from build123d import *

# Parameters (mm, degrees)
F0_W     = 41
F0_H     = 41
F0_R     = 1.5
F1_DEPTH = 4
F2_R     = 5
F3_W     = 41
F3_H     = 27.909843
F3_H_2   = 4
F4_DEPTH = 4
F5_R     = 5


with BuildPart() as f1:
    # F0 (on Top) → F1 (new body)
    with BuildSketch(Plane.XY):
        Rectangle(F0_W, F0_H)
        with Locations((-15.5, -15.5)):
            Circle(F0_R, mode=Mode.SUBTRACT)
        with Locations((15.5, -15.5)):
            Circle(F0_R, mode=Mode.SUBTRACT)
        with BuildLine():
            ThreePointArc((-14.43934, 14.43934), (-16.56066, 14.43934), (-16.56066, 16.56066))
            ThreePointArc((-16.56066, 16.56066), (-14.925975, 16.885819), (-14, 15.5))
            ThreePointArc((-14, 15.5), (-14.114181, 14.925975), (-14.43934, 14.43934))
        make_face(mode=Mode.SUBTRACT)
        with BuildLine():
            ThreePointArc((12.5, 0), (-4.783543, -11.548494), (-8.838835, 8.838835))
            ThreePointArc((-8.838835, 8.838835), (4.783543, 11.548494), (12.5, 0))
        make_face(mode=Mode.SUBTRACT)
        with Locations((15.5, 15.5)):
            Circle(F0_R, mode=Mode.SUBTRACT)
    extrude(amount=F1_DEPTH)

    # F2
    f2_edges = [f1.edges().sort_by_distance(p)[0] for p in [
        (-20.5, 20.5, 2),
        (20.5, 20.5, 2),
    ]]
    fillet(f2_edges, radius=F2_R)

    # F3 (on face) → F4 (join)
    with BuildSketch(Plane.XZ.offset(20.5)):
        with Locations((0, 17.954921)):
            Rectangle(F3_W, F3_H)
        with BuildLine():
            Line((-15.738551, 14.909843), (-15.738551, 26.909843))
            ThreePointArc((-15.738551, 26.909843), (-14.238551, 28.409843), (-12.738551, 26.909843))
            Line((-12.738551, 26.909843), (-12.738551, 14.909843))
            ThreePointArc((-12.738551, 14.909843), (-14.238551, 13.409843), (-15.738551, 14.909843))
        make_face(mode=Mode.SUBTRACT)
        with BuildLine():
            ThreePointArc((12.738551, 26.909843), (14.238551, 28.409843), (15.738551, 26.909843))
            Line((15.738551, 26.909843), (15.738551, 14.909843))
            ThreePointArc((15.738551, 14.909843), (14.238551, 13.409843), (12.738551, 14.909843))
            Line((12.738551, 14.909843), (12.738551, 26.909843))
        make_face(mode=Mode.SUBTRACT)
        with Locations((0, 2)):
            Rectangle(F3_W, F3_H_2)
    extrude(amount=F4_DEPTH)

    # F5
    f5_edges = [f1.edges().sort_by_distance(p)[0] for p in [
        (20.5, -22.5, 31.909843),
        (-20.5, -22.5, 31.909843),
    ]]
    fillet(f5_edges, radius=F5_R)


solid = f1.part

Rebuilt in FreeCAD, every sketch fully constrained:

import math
import FreeCAD as App
import Part
import Sketcher

V = App.Vector


def edges_at(feature, points):
    """Names of the edges that pass closest to the given points."""
    edges = feature.Shape.Edges
    near = lambda p: min(range(len(edges)), key=lambda i: edges[i].distToShape(Part.Vertex(*p))[0])
    return sorted({f"Edge{near(p) + 1}" for p in points})


def add_polygon(sketch, points):
    """Adds a closed chain of lines whose ends are joined by coincident constraints."""
    first, n = sketch.GeometryCount, len(points)
    for a, b in zip(points, points[1:] + points[:1]):
        sketch.addGeometry(Part.LineSegment(App.Vector(*a, 0), App.Vector(*b, 0)), False)
    for i in range(n):
        sketch.addConstraint(Sketcher.Constraint("Coincident", first + i, 2, first + (i + 1) % n, 1))

doc = App.newDocument("Part")
params = doc.addObject("Spreadsheet::Sheet", "Params")
for row, (alias, value) in enumerate([
    ("sketch1_diameter", "3 mm"),
    ("sketch1_radius", "12.5 mm"),
    ("sketch1_width", "41 mm"),
    ("pad1_length", "4 mm"),
    ("fillet_radius", "5 mm"),
    ("sketch2_radius", "1.5 mm"),
    ("sketch2_width", "41 mm"),
    ("sketch2_height", "12 mm"),
    ("pad2_length", "4 mm"),
    ("fillet2_radius", "5 mm"),
], start=1):
    params.set(f"A{row}", alias)
    params.set(f"B{row}", "=" + value)
    params.setAlias(f"B{row}", alias)

body = doc.addObject("PartDesign::Body", "Body")

sketch1 = doc.addObject("Sketcher::SketchObject", "Sketch")
body.addObject(sketch1)
sketch1.AttachmentSupport = (doc.XY_Plane, [""])
sketch1.MapMode = "FlatFace"
add_polygon(sketch1, [(-20.5, 20.5), (-20.5, -20.5), (20.5, -20.5), (20.5, 20.5)])
sketch1.addGeometry(Part.Circle(V(-15.5, -15.5, 0), V(0, 0, 1), 1.5), False)
sketch1.addGeometry(Part.Circle(V(15.5, -15.5, 0), V(0, 0, 1), 1.5), False)
sketch1.addGeometry(Part.ArcOfCircle(Part.Circle(V(0, 0, 0), V(0, 0, 1), 12.5), math.radians(0), math.radians(135)), False)
sketch1.addGeometry(Part.ArcOfCircle(Part.Circle(V(0, 0, 0), V(0, 0, 1), 12.5), math.radians(135), math.radians(360)), False)
sketch1.addGeometry(Part.ArcOfCircle(Part.Circle(V(-15.5, 15.5, 0), V(0, 0, 1), 1.5), math.radians(-45), math.radians(0)), False)
sketch1.addGeometry(Part.ArcOfCircle(Part.Circle(V(-15.5, 15.5, 0), V(0, 0, 1), 1.5), math.radians(135), math.radians(315)), False)
sketch1.addGeometry(Part.ArcOfCircle(Part.Circle(V(-15.5, 15.5, 0), V(0, 0, 1), 1.5), math.radians(0), math.radians(135)), False)
sketch1.addGeometry(Part.Circle(V(15.5, 15.5, 0), V(0, 0, 1), 1.5), False)
sketch1.addConstraint([
    Sketcher.Constraint("Tangent", 6, 1, 7, 2),
    Sketcher.Constraint("Coincident", 7, 1, 6, 2),
    Sketcher.Constraint("Tangent", 8, 1, 9, 2),
    Sketcher.Constraint("Tangent", 9, 1, 10, 2),
    Sketcher.Constraint("Tangent", 10, 1, 8, 2),
    Sketcher.Constraint("Vertical", 0),
    Sketcher.Constraint("Horizontal", 1),
    Sketcher.Constraint("Vertical", 2),
    Sketcher.Constraint("Horizontal", 3),
    Sketcher.Constraint("Coincident", 6, 3, -1, 1),
    Sketcher.Constraint("Equal", 4, 5),
    Sketcher.Constraint("Equal", 5, 9),
    Sketcher.Constraint("Equal", 10, 11),
    Sketcher.Constraint("Symmetric", 5, 3, 8, 3, -1, 1),
    Sketcher.Constraint("Symmetric", 4, 3, 11, 3, -1, 1),
    Sketcher.Constraint("Symmetric", 0, 2, 2, 2, -1, 1),
    Sketcher.Constraint("Symmetric", 4, 3, 5, 3, -2),
    Sketcher.Constraint("PointOnObject", 6, 1, -1),
    Sketcher.Constraint("Horizontal", 11, 3, 10, 1),
    Sketcher.Constraint("Equal", 3, 0),
    Sketcher.Constraint("Diameter", 4, 3.0),
    Sketcher.Constraint("Radius", 6, 12.5),
    Sketcher.Constraint("DistanceX", 1, 1, 1, 2, 41.0),
    Sketcher.Constraint("DistanceX", 10, 1, -1, 1, 14.0),
    Sketcher.Constraint("DistanceY", 4, 3, 8, 3, 31.000001),
    Sketcher.Constraint("DistanceX", 8, 1, -1, 1, 14.43934),
    Sketcher.Constraint("DistanceX", 9, 1, -1, 1, 16.56066),
    Sketcher.Constraint("DistanceX", 7, 1, -1, 1, 8.838835),
])
sketch1.setExpression("Constraints[24]", "Params.sketch1_diameter")
sketch1.setExpression("Constraints[25]", "Params.sketch1_radius")
sketch1.setExpression("Constraints[26]", "Params.sketch1_width")
pad1 = doc.addObject("PartDesign::Pad", "Pad")
body.addObject(pad1)
pad1.Profile = sketch1
pad1.setExpression("Length", "Params.pad1_length")
doc.recompute()

fillet = doc.addObject("PartDesign::Fillet", "Fillet")
body.addObject(fillet)
fillet.Base = (pad1, edges_at(pad1, [(-20.5, 20.5, 2), (20.5, 20.5, 2)]))
fillet.setExpression("Radius", "Params.fillet_radius")

sketch2 = doc.addObject("Sketcher::SketchObject", "Sketch001")
body.addObject(sketch2)
sketch2.AttachmentSupport = (doc.XZ_Plane, [""])
sketch2.MapMode = "FlatFace"
sketch2.AttachmentOffset = App.Placement(V(0, 0, 20.5), App.Rotation())
add_polygon(sketch2, [(-20.5, 0), (20.5, 0), (20.5, 31.9), (-20.5, 31.9)])
sketch2.addGeometry(Part.LineSegment(V(15.7, 26.9, 0), V(15.7, 14.9, 0)), False)
sketch2.addGeometry(Part.ArcOfCircle(Part.Circle(V(14.2, 14.9, 0), V(0, 0, 1), 1.5), math.radians(180), math.radians(360)), False)
sketch2.addGeometry(Part.LineSegment(V(12.7, 14.9, 0), V(12.7, 26.9, 0)), False)
sketch2.addGeometry(Part.ArcOfCircle(Part.Circle(V(14.2, 26.9, 0), V(0, 0, 1), 1.5), math.radians(0), math.radians(180)), False)
sketch2.addGeometry(Part.ArcOfCircle(Part.Circle(V(-14.2, 14.9, 0), V(0, 0, 1), 1.5), math.radians(180), math.radians(360)), False)
sketch2.addGeometry(Part.LineSegment(V(-15.7, 14.9, 0), V(-15.7, 26.9, 0)), False)
sketch2.addGeometry(Part.ArcOfCircle(Part.Circle(V(-14.2, 26.9, 0), V(0, 0, 1), 1.5), math.radians(0), math.radians(180)), False)
sketch2.addGeometry(Part.LineSegment(V(-12.7, 26.9, 0), V(-12.7, 14.9, 0)), False)
sketch2.addConstraint([
    Sketcher.Constraint("Tangent", 4, 2, 5, 2),
    Sketcher.Constraint("Tangent", 5, 1, 6, 1),
    Sketcher.Constraint("Tangent", 6, 2, 7, 2),
    Sketcher.Constraint("Tangent", 7, 1, 4, 1),
    Sketcher.Constraint("Tangent", 8, 1, 9, 1),
    Sketcher.Constraint("Tangent", 9, 2, 10, 2),
    Sketcher.Constraint("Tangent", 10, 1, 11, 1),
    Sketcher.Constraint("Tangent", 11, 2, 8, 2),
    Sketcher.Constraint("Horizontal", 0),
    Sketcher.Constraint("Vertical", 1),
    Sketcher.Constraint("Horizontal", 2),
    Sketcher.Constraint("Vertical", 3),
    Sketcher.Constraint("Vertical", 4),
    Sketcher.Constraint("Vertical", 6),
    Sketcher.Constraint("Vertical", 9),
    Sketcher.Constraint("Vertical", 11),
    Sketcher.Constraint("Equal", 7, 8),
    Sketcher.Constraint("Symmetric", 0, 2, 3, 2, -1, 1),
    Sketcher.Constraint("Symmetric", 5, 3, 8, 3, -2),
    Sketcher.Constraint("Horizontal", 7, 3, 10, 3),
    Sketcher.Constraint("Radius", 5, 1.5),
    Sketcher.Constraint("DistanceX", 0, 1, 0, 2, 41.0),
    Sketcher.Constraint("DistanceY", 4, 2, 4, 1, 12.0),
    Sketcher.Constraint("DistanceY", 7, 3, 1, 2, 5.0),
    Sketcher.Constraint("DistanceX", 8, 3, 5, 3, 28.477102),
    Sketcher.Constraint("DistanceY", 1, 1, 1, 2, 31.909842),
])
sketch2.setExpression("Constraints[24]", "Params.sketch2_radius")
sketch2.setExpression("Constraints[25]", "Params.sketch2_width")
sketch2.setExpression("Constraints[26]", "Params.sketch2_height")
pad2 = doc.addObject("PartDesign::Pad", "Pad001")
body.addObject(pad2)
pad2.Profile = sketch2
pad2.setExpression("Length", "Params.pad2_length")
doc.recompute()

fillet2 = doc.addObject("PartDesign::Fillet", "Fillet001")
body.addObject(fillet2)
fillet2.Base = (pad2, edges_at(pad2, [(20.5, -22.5, 31.91), (-20.5, -22.5, 31.91)]))
fillet2.setExpression("Radius", "Params.fillet2_radius")

doc.recompute()
